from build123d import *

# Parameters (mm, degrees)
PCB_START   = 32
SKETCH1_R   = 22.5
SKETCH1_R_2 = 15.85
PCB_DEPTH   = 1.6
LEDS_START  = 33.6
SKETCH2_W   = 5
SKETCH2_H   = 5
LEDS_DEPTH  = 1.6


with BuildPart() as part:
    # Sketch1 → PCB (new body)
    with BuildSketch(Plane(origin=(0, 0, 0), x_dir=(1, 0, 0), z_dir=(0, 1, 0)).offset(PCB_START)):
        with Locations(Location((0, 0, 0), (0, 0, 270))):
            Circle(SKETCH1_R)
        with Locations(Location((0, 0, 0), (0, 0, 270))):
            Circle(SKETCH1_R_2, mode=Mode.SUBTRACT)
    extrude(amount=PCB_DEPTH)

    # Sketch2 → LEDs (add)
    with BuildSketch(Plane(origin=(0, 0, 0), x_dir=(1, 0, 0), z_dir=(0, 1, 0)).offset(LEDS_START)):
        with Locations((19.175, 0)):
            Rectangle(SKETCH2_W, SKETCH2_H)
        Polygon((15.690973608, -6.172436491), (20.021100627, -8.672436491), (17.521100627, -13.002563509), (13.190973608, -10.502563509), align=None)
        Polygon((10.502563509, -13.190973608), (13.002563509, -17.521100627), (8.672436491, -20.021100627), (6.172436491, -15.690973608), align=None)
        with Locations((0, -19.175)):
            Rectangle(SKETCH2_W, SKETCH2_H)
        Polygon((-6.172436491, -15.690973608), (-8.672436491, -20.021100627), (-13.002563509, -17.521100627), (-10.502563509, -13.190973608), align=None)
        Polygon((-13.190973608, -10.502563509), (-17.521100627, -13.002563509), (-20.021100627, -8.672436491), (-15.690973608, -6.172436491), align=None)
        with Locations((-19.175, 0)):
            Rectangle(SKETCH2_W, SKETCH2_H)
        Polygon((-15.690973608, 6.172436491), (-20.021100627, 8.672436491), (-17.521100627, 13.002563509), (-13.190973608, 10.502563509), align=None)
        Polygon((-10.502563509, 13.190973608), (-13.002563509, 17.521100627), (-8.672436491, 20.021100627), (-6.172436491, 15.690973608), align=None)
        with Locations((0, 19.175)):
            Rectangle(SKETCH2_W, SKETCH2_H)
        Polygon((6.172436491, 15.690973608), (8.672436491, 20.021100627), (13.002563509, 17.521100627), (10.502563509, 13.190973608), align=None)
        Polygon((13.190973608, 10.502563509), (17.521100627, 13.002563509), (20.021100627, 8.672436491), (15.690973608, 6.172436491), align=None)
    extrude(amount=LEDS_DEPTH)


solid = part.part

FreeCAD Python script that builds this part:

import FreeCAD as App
import Part
import Sketcher
Q = App.Units.Quantity

doc = App.newDocument("Part")
body = doc.addObject("PartDesign::Body", "Body")

# Sketch on XZ plane
sketch1 = doc.addObject("Sketcher::SketchObject", "Sketch")
body.addObject(sketch1)
sketch1.AttachmentSupport = (doc.XZ_Plane, [""])
sketch1.MapMode = "FlatFace"
sketch1.AttachmentOffset = App.Placement(App.Vector(0, 0, -32), App.Rotation())
sketch1.addGeometry(Part.Circle(App.Vector(0, 0, 0), App.Vector(0, 0, 1), 22), False)
sketch1.addGeometry(Part.Circle(App.Vector(0, 0, 0), App.Vector(0, 0, 1), 16), False)
sketch1.addConstraint(Sketcher.Constraint("Coincident", 0, 3, -1, 1))
sketch1.addConstraint(Sketcher.Constraint("Coincident", 1, 3, -1, 1))
sketch1.addConstraint(Sketcher.Constraint("Diameter", 0, Q("45 mm")))
sketch1.addConstraint(Sketcher.Constraint("Diameter", 1, Q("31.7 mm")))
pad1 = doc.addObject("PartDesign::Pad", "Pad")
body.addObject(pad1)
pad1.Profile = sketch1
pad1.Length = 1.6
pad1.Reversed = True

# Sketch on XZ plane
sketch2 = doc.addObject("Sketcher::SketchObject", "Sketch001")
body.addObject(sketch2)
sketch2.AttachmentSupport = (doc.XZ_Plane, [""])
sketch2.MapMode = "FlatFace"
sketch2.AttachmentOffset = App.Placement(App.Vector(0, 0, -33.6), App.Rotation())
sketch2.addGeometry(Part.LineSegment(App.Vector(16.7, -2.5, 0), App.Vector(16.7, 2.5, 0)), False)
sketch2.addGeometry(Part.LineSegment(App.Vector(16.7, 2.5, 0), App.Vector(21.7, 2.5, 0)), False)
sketch2.addGeometry(Part.LineSegment(App.Vector(21.7, 2.5, 0), App.Vector(21.7, -2.5, 0)), False)
sketch2.addGeometry(Part.LineSegment(App.Vector(21.7, -2.5, 0), App.Vector(16.7, -2.5, 0)), False)
sketch2.addGeometry(Part.LineSegment(App.Vector(20, 8.7, 0), App.Vector(15.7, 6.2, 0)), False)
sketch2.addGeometry(Part.LineSegment(App.Vector(15.7, 6.2, 0), App.Vector(13.2, 10.5, 0)), False)
sketch2.addGeometry(Part.LineSegment(App.Vector(13.2, 10.5, 0), App.Vector(17.5, 13, 0)), False)
sketch2.addGeometry(Part.LineSegment(App.Vector(17.5, 13, 0), App.Vector(20, 8.7, 0)), False)
sketch2.addGeometry(Part.LineSegment(App.Vector(13, 17.5, 0), App.Vector(10.5, 13.2, 0)), False)
sketch2.addGeometry(Part.LineSegment(App.Vector(10.5, 13.2, 0), App.Vector(6.2, 15.7, 0)), False)
sketch2.addGeometry(Part.LineSegment(App.Vector(6.2, 15.7, 0), App.Vector(8.7, 20, 0)), False)
sketch2.addGeometry(Part.LineSegment(App.Vector(8.7, 20, 0), App.Vector(13, 17.5, 0)), False)
sketch2.addGeometry(Part.LineSegment(App.Vector(-2.5, 16.7, 0), App.Vector(-2.5, 21.7, 0)), False)
sketch2.addGeometry(Part.LineSegment(App.Vector(-2.5, 21.7, 0), App.Vector(2.5, 21.7, 0)), False)
sketch2.addGeometry(Part.LineSegment(App.Vector(2.5, 21.7, 0), App.Vector(2.5, 16.7, 0)), False)
sketch2.addGeometry(Part.LineSegment(App.Vector(2.5, 16.7, 0), App.Vector(-2.5, 16.7, 0)), False)
sketch2.addGeometry(Part.LineSegment(App.Vector(-8.7, 20, 0), App.Vector(-6.2, 15.7, 0)), False)
sketch2.addGeometry(Part.LineSegment(App.Vector(-6.2, 15.7, 0), App.Vector(-10.5, 13.2, 0)), False)
sketch2.addGeometry(Part.LineSegment(App.Vector(-10.5, 13.2, 0), App.Vector(-13, 17.5, 0)), False)
sketch2.addGeometry(Part.LineSegment(App.Vector(-13, 17.5, 0), App.Vector(-8.7, 20, 0)), False)
sketch2.addGeometry(Part.LineSegment(App.Vector(-17.5, 13, 0), App.Vector(-13.2, 10.5, 0)), False)
sketch2.addGeometry(Part.LineSegment(App.Vector(-13.2, 10.5, 0), App.Vector(-15.7, 6.2, 0)), False)
sketch2.addGeometry(Part.LineSegment(App.Vector(-15.7, 6.2, 0), App.Vector(-20, 8.7, 0)), False)
sketch2.addGeometry(Part.LineSegment(App.Vector(-20, 8.7, 0), App.Vector(-17.5, 13, 0)), False)
sketch2.addGeometry(Part.LineSegment(App.Vector(-21.7, -2.5, 0), App.Vector(-21.7, 2.5, 0)), False)
sketch2.addGeometry(Part.LineSegment(App.Vector(-21.7, 2.5, 0), App.Vector(-16.7, 2.5, 0)), False)
sketch2.addGeometry(Part.LineSegment(App.Vector(-16.7, 2.5, 0), App.Vector(-16.7, -2.5, 0)), False)
sketch2.addGeometry(Part.LineSegment(App.Vector(-16.7, -2.5, 0), App.Vector(-21.7, -2.5, 0)), False)
sketch2.addGeometry(Part.LineSegment(App.Vector(-20, -8.7, 0), App.Vector(-15.7, -6.2, 0)), False)
sketch2.addGeometry(Part.LineSegment(App.Vector(-15.7, -6.2, 0), App.Vector(-13.2, -10.5, 0)), False)
sketch2.addGeometry(Part.LineSegment(App.Vector(-13.2, -10.5, 0), App.Vector(-17.5, -13, 0)), False)
sketch2.addGeometry(Part.LineSegment(App.Vector(-17.5, -13, 0), App.Vector(-20, -8.7, 0)), False)
sketch2.addGeometry(Part.LineSegment(App.Vector(-13, -17.5, 0), App.Vector(-10.5, -13.2, 0)), False)
sketch2.addGeometry(Part.LineSegment(App.Vector(-10.5, -13.2, 0), App.Vector(-6.2, -15.7, 0)), False)
sketch2.addGeometry(Part.LineSegment(App.Vector(-6.2, -15.7, 0), App.Vector(-8.7, -20, 0)), False)
sketch2.addGeometry(Part.LineSegment(App.Vector(-8.7, -20, 0), App.Vector(-13, -17.5, 0)), False)
sketch2.addGeometry(Part.LineSegment(App.Vector(-2.5, -21.7, 0), App.Vector(-2.5, -16.7, 0)), False)
sketch2.addGeometry(Part.LineSegment(App.Vector(-2.5, -16.7, 0), App.Vector(2.5, -16.7, 0)), False)
sketch2.addGeometry(Part.LineSegment(App.Vector(2.5, -16.7, 0), App.Vector(2.5, -21.7, 0)), False)
sketch2.addGeometry(Part.LineSegment(App.Vector(2.5, -21.7, 0), App.Vector(-2.5, -21.7, 0)), False)
sketch2.addGeometry(Part.LineSegment(App.Vector(8.7, -20, 0), App.Vector(6.2, -15.7, 0)), False)
sketch2.addGeometry(Part.LineSegment(App.Vector(6.2, -15.7, 0), App.Vector(10.5, -13.2, 0)), False)
sketch2.addGeometry(Part.LineSegment(App.Vector(10.5, -13.2, 0), App.Vector(13, -17.5, 0)), False)
sketch2.addGeometry(Part.LineSegment(App.Vector(13, -17.5, 0), App.Vector(8.7, -20, 0)), False)
sketch2.addGeometry(Part.LineSegment(App.Vector(17.5, -13, 0), App.Vector(13.2, -10.5, 0)), False)
sketch2.addGeometry(Part.LineSegment(App.Vector(13.2, -10.5, 0), App.Vector(15.7, -6.2, 0)), False)
sketch2.addGeometry(Part.LineSegment(App.Vector(15.7, -6.2, 0), App.Vector(20, -8.7, 0)), False)
sketch2.addGeometry(Part.LineSegment(App.Vector(20, -8.7, 0), App.Vector(17.5, -13, 0)), False)
sketch2.addConstraint(Sketcher.Constraint("Coincident", 0, 2, 1, 1))
sketch2.addConstraint(Sketcher.Constraint("Coincident", 1, 2, 2, 1))
sketch2.addConstraint(Sketcher.Constraint("Coincident", 2, 2, 3, 1))
sketch2.addConstraint(Sketcher.Constraint("Coincident", 3, 2, 0, 1))
sketch2.addConstraint(Sketcher.Constraint("Coincident", 4, 2, 5, 1))
sketch2.addConstraint(Sketcher.Constraint("Coincident", 5, 2, 6, 1))
sketch2.addConstraint(Sketcher.Constraint("Coincident", 6, 2, 7, 1))
sketch2.addConstraint(Sketcher.Constraint("Coincident", 7, 2, 4, 1))
sketch2.addConstraint(Sketcher.Constraint("Coincident", 8, 2, 9, 1))
sketch2.addConstraint(Sketcher.Constraint("Coincident", 9, 2, 10, 1))
sketch2.addConstraint(Sketcher.Constraint("Coincident", 10, 2, 11, 1))
sketch2.addConstraint(Sketcher.Constraint("Coincident", 11, 2, 8, 1))
sketch2.addConstraint(Sketcher.Constraint("Coincident", 12, 2, 13, 1))
sketch2.addConstraint(Sketcher.Constraint("Coincident", 13, 2, 14, 1))
sketch2.addConstraint(Sketcher.Constraint("Coincident", 14, 2, 15, 1))
sketch2.addConstraint(Sketcher.Constraint("Coincident", 15, 2, 12, 1))
sketch2.addConstraint(Sketcher.Constraint("Coincident", 16, 2, 17, 1))
sketch2.addConstraint(Sketcher.Constraint("Coincident", 17, 2, 18, 1))
sketch2.addConstraint(Sketcher.Constraint("Coincident", 18, 2, 19, 1))
sketch2.addConstraint(Sketcher.Constraint("Coincident", 19, 2, 16, 1))
sketch2.addConstraint(Sketcher.Constraint("Coincident", 20, 2, 21, 1))
sketch2.addConstraint(Sketcher.Constraint("Coincident", 21, 2, 22, 1))
sketch2.addConstraint(Sketcher.Constraint("Coincident", 22, 2, 23, 1))
sketch2.addConstraint(Sketcher.Constraint("Coincident", 23, 2, 20, 1))
sketch2.addConstraint(Sketcher.Constraint("Coincident", 24, 2, 25, 1))
sketch2.addConstraint(Sketcher.Constraint("Coincident", 25, 2, 26, 1))
sketch2.addConstraint(Sketcher.Constraint("Coincident", 26, 2, 27, 1))
sketch2.addConstraint(Sketcher.Constraint("Coincident", 27, 2, 24, 1))
sketch2.addConstraint(Sketcher.Constraint("Coincident", 28, 2, 29, 1))
sketch2.addConstraint(Sketcher.Constraint("Coincident", 29, 2, 30, 1))
sketch2.addConstraint(Sketcher.Constraint("Coincident", 30, 2, 31, 1))
sketch2.addConstraint(Sketcher.Constraint("Coincident", 31, 2, 28, 1))
sketch2.addConstraint(Sketcher.Constraint("Coincident", 32, 2, 33, 1))
sketch2.addConstraint(Sketcher.Constraint("Coincident", 33, 2, 34, 1))
sketch2.addConstraint(Sketcher.Constraint("Coincident", 34, 2, 35, 1))
sketch2.addConstraint(Sketcher.Constraint("Coincident", 35, 2, 32, 1))
sketch2.addConstraint(Sketcher.Constraint("Coincident", 36, 2, 37, 1))
sketch2.addConstraint(Sketcher.Constraint("Coincident", 37, 2, 38, 1))
sketch2.addConstraint(Sketcher.Constraint("Coincident", 38, 2, 39, 1))
sketch2.addConstraint(Sketcher.Constraint("Coincident", 39, 2, 36, 1))
sketch2.addConstraint(Sketcher.Constraint("Coincident", 40, 2, 41, 1))
sketch2.addConstraint(Sketcher.Constraint("Coincident", 41, 2, 42, 1))
sketch2.addConstraint(Sketcher.Constraint("Coincident", 42, 2, 43, 1))
sketch2.addConstraint(Sketcher.Constraint("Coincident", 43, 2, 40, 1))
sketch2.addConstraint(Sketcher.Constraint("Coincident", 44, 2, 45, 1))
sketch2.addConstraint(Sketcher.Constraint("Coincident", 45, 2, 46, 1))
sketch2.addConstraint(Sketcher.Constraint("Coincident", 46, 2, 47, 1))
sketch2.addConstraint(Sketcher.Constraint("Coincident", 47, 2, 44, 1))
sketch2.addConstraint(Sketcher.Constraint("Vertical", 0))
sketch2.addConstraint(Sketcher.Constraint("Horizontal", 1))
sketch2.addConstraint(Sketcher.Constraint("Vertical", 2))
sketch2.addConstraint(Sketcher.Constraint("Horizontal", 3))
sketch2.addConstraint(Sketcher.Constraint("Vertical", 12))
sketch2.addConstraint(Sketcher.Constraint("Horizontal", 13))
sketch2.addConstraint(Sketcher.Constraint("Vertical", 14))
sketch2.addConstraint(Sketcher.Constraint("Horizontal", 15))
sketch2.addConstraint(Sketcher.Constraint("Vertical", 24))
sketch2.addConstraint(Sketcher.Constraint("Horizontal", 25))
sketch2.addConstraint(Sketcher.Constraint("Vertical", 26))
sketch2.addConstraint(Sketcher.Constraint("Horizontal", 27))
sketch2.addConstraint(Sketcher.Constraint("Vertical", 36))
sketch2.addConstraint(Sketcher.Constraint("Horizontal", 37))
sketch2.addConstraint(Sketcher.Constraint("Vertical", 38))
sketch2.addConstraint(Sketcher.Constraint("Horizontal", 39))
sketch2.addConstraint(Sketcher.Constraint("Symmetric", 2, 2, 24, 2, -1, 1))
sketch2.addConstraint(Sketcher.Constraint("Symmetric", 0, 2, 26, 2, -1, 1))
sketch2.addConstraint(Sketcher.Constraint("Symmetric", 4, 2, 28, 2, -1, 1))
sketch2.addConstraint(Sketcher.Constraint("Symmetric", 5, 2, 29, 2, -1, 1))
sketch2.addConstraint(Sketcher.Constraint("Symmetric", 6, 2, 30, 2, -1, 1))
sketch2.addConstraint(Sketcher.Constraint("Symmetric", 7, 2, 31, 2, -1, 1))
sketch2.addConstraint(Sketcher.Constraint("Symmetric", 8, 2, 32, 2, -1, 1))
sketch2.addConstraint(Sketcher.Constraint("Symmetric", 9, 2, 33, 2, -1, 1))
sketch2.addConstraint(Sketcher.Constraint("Symmetric", 10, 2, 34, 2, -1, 1))
sketch2.addConstraint(Sketcher.Constraint("Symmetric", 11, 2, 35, 2, -1, 1))
sketch2.addConstraint(Sketcher.Constraint("Symmetric", 14, 2, 36, 2, -1, 1))
sketch2.addConstraint(Sketcher.Constraint("Symmetric", 12, 2, 38, 2, -1, 1))
sketch2.addConstraint(Sketcher.Constraint("Symmetric", 16, 2, 40, 2, -1, 1))
sketch2.addConstraint(Sketcher.Constraint("Symmetric", 17, 2, 41, 2, -1, 1))
sketch2.addConstraint(Sketcher.Constraint("Symmetric", 18, 2, 42, 2, -1, 1))
sketch2.addConstraint(Sketcher.Constraint("Symmetric", 19, 2, 43, 2, -1, 1))
sketch2.addConstraint(Sketcher.Constraint("Symmetric", 20, 2, 44, 2, -1, 1))
sketch2.addConstraint(Sketcher.Constraint("Symmetric", 21, 2, 45, 2, -1, 1))
sketch2.addConstraint(Sketcher.Constraint("Symmetric", 22, 2, 46, 2, -1, 1))
sketch2.addConstraint(Sketcher.Constraint("Symmetric", 23, 2, 47, 2, -1, 1))
sketch2.addConstraint(Sketcher.Constraint("Symmetric", 9, 2, 16, 2, -2))
sketch2.addConstraint(Sketcher.Constraint("Symmetric", 8, 2, 17, 2, -2))
sketch2.addConstraint(Sketcher.Constraint("Symmetric", 11, 2, 18, 2, -2))
sketch2.addConstraint(Sketcher.Constraint("Symmetric", 10, 2, 19, 2, -2))
sketch2.addConstraint(Sketcher.Constraint("Symmetric", 5, 2, 20, 2, -2))
sketch2.addConstraint(Sketcher.Constraint("Symmetric", 4, 2, 21, 2, -2))
sketch2.addConstraint(Sketcher.Constraint("Symmetric", 7, 2, 22, 2, -2))
sketch2.addConstraint(Sketcher.Constraint("Symmetric", 6, 2, 23, 2, -2))
sketch2.addConstraint(Sketcher.Constraint("Perpendicular", 4, 5))
sketch2.addConstraint(Sketcher.Constraint("Perpendicular", 5, 6))
sketch2.addConstraint(Sketcher.Constraint("Perpendicular", 6, 7))
sketch2.addConstraint(Sketcher.Constraint("Perpendicular", 8, 9))
sketch2.addConstraint(Sketcher.Constraint("Perpendicular", 9, 10))
sketch2.addConstraint(Sketcher.Constraint("Perpendicular", 10, 11))
sketch2.addConstraint(Sketcher.Constraint("Parallel", 7, 16))
sketch2.addConstraint(Sketcher.Constraint("Horizontal", 1, 2, 24, 2))
sketch2.addConstraint(Sketcher.Constraint("Vertical", 15, 2, 36, 2))
sketch2.addConstraint(Sketcher.Constraint("Equal", 3, 13))
sketch2.addConstraint(Sketcher.Constraint("Equal", 39, 0))
sketch2.addConstraint(Sketcher.Constraint("Equal", 2, 12))
sketch2.addConstraint(Sketcher.Constraint("Equal", 4, 5))
sketch2.addConstraint(Sketcher.Constraint("Equal", 7, 8))
sketch2.addConstraint(Sketcher.Constraint("Equal", 8, 9))
sketch2.addConstraint(Sketcher.Constraint("DistanceX", 1, 1, 1, 2, Q("5 mm")))
sketch2.addConstraint(Sketcher.Constraint("Angle", 4, Q("-150 deg")))
sketch2.addConstraint(Sketcher.Constraint("Distance", 4, Q("5 mm")))
sketch2.addConstraint(Sketcher.Constraint("DistanceX", -1, 1, 0, 2, Q("16.675 mm")))
sketch2.addConstraint(Sketcher.Constraint("DistanceY", -1, 1, 12, 2, Q("21.675 mm")))
sketch2.addConstraint(Sketcher.Constraint("DistanceX", -1, 1, 6, 2, Q("17.521101 mm")))
sketch2.addConstraint(Sketcher.Constraint("DistanceY", -1, 1, 10, 2, Q("20.021101 mm")))
sketch2.addConstraint(Sketcher.Constraint("DistanceX", 8, 2, 5, 2, Q("2.68841 mm")))
sketch2.addConstraint(Sketcher.Constraint("DistanceY", 5, 2, 8, 2, Q("2.68841 mm")))
pad2 = doc.addObject("PartDesign::Pad", "Pad001")
body.addObject(pad2)
pad2.Profile = sketch2
pad2.Length = 1.6
pad2.Reversed = True

doc.recompute()
